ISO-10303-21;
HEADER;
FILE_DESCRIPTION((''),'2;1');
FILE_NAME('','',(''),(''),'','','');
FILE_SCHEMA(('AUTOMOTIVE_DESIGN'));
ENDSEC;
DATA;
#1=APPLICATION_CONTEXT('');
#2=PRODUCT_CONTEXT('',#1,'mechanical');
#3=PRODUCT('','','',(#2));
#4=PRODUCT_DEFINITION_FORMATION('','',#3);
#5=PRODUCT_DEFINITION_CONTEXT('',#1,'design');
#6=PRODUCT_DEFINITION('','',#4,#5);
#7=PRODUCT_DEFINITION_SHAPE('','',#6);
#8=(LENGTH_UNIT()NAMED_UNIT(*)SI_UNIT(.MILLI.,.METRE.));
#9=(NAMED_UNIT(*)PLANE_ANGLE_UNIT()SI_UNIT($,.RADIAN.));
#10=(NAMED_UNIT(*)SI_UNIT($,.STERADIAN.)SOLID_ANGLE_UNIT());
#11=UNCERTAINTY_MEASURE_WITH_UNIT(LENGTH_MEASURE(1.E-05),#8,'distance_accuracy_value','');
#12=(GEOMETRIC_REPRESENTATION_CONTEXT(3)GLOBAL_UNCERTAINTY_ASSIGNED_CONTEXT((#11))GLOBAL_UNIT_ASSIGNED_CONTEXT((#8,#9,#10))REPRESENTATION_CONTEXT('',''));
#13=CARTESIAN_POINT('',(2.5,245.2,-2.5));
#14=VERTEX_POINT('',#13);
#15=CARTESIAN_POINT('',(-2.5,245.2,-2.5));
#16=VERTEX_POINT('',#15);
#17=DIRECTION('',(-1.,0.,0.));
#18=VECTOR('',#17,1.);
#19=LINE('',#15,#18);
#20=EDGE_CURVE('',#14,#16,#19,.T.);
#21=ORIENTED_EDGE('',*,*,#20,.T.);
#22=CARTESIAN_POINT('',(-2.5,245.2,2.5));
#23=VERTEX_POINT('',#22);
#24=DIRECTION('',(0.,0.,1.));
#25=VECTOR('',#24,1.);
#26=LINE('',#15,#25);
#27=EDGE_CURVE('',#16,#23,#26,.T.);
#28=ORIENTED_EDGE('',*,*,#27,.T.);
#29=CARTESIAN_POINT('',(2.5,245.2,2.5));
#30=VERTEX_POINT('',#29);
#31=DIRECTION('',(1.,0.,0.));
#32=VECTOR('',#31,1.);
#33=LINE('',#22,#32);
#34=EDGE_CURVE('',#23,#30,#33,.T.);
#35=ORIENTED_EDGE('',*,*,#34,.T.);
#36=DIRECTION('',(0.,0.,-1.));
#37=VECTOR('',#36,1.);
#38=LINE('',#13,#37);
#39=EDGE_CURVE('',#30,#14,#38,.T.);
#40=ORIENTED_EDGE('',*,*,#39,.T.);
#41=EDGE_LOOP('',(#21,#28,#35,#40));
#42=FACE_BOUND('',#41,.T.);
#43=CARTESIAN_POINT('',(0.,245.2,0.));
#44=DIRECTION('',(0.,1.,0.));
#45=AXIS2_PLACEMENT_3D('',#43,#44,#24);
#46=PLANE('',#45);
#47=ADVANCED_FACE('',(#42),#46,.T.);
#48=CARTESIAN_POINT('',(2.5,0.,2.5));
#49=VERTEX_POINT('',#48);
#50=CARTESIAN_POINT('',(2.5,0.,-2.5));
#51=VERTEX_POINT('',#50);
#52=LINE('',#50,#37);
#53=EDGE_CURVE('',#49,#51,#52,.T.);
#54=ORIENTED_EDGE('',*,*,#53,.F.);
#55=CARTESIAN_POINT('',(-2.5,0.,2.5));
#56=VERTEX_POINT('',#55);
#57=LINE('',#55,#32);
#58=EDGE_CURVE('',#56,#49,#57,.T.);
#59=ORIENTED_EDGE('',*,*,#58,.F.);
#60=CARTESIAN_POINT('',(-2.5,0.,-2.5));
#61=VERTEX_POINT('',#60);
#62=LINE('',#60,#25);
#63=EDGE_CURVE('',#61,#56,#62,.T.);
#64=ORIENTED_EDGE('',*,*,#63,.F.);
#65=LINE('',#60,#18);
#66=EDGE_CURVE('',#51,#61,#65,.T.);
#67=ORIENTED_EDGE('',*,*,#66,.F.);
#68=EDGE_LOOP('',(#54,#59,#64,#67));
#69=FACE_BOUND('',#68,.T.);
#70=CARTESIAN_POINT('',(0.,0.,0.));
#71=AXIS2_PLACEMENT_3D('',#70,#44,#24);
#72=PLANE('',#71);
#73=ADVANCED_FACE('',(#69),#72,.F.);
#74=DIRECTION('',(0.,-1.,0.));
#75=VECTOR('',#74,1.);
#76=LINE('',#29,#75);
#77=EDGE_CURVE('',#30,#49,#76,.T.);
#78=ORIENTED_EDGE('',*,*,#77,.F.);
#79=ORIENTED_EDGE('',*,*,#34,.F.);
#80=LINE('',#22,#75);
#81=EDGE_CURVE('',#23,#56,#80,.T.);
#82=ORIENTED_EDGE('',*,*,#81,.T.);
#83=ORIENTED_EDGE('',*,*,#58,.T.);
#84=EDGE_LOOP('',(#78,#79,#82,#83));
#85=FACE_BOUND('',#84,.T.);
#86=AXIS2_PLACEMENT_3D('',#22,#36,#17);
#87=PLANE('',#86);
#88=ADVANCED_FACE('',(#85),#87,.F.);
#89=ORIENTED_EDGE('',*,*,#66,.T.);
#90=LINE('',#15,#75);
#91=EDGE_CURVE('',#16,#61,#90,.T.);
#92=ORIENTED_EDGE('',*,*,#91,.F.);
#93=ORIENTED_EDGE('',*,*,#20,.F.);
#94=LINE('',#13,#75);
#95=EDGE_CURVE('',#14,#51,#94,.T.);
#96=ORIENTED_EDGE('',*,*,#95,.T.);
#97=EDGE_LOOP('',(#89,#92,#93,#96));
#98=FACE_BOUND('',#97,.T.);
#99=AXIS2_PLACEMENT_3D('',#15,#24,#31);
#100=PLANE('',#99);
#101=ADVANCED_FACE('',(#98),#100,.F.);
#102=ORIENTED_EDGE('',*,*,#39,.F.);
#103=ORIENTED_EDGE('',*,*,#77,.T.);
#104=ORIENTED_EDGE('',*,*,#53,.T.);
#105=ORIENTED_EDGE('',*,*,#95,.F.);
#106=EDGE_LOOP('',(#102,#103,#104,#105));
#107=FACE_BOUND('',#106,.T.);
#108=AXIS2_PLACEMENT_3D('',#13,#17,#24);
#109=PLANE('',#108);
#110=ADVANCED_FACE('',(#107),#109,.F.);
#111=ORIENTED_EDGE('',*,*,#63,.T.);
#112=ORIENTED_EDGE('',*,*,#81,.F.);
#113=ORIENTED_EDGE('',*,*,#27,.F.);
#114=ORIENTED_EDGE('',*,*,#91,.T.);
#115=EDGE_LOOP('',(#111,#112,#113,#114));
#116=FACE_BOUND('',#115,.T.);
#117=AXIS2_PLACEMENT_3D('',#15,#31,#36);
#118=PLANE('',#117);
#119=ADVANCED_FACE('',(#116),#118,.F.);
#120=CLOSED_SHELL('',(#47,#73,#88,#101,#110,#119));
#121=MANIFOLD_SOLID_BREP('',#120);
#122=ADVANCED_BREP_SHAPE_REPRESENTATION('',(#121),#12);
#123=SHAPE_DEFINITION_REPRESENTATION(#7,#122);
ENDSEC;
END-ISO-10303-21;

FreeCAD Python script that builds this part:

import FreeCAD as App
import Part
import Sketcher


def add_polygon(sketch, points):
    """Adds a closed chain of lines whose ends are joined by coincident constraints."""
    first, n = sketch.GeometryCount, len(points)
    for a, b in zip(points, points[1:] + points[:1]):
        sketch.addGeometry(Part.LineSegment(App.Vector(*a, 0), App.Vector(*b, 0)), False)
    for i in range(n):
        sketch.addConstraint(Sketcher.Constraint("Coincident", first + i, 2, first + (i + 1) % n, 1))

doc = App.newDocument("Part")
params = doc.addObject("Spreadsheet::Sheet", "Params")
for row, (alias, value) in enumerate([
    ("sketch1_width", "5 mm"),
    ("pad1_length", "245.2 mm"),
], start=1):
    params.set(f"A{row}", alias)
    params.set(f"B{row}", "=" + value)
    params.setAlias(f"B{row}", alias)

body = doc.addObject("PartDesign::Body", "Body")

# Sketch on XZ plane
sketch1 = body.newObject("Sketcher::SketchObject", "Sketch")
sketch1.AttachmentSupport = (doc.getObject("XZ_Plane"), [""])
sketch1.MapMode = "FlatFace"
add_polygon(sketch1, [(-2, -2), (-2, 2), (2, 2), (2, -2)])  # lines 0-3
sketch1.addConstraint([
    Sketcher.Constraint("Vertical", 0),
    Sketcher.Constraint("Horizontal", 1),
    Sketcher.Constraint("Vertical", 2),
    Sketcher.Constraint("Horizontal", 3),
    Sketcher.Constraint("Symmetric", 0, 2, 2, 2, -1, 1),
    Sketcher.Constraint("Equal", 3, 0),
    Sketcher.Constraint("DistanceX", 1, 1, 1, 2, 5.0),
])
sketch1.setExpression("Constraints[10]", "Params.sketch1_width")
pad1 = body.newObject("PartDesign::Pad", "Pad")
pad1.Profile = sketch1
pad1.setExpression("Length", "Params.pad1_length")
pad1.Reversed = True

doc.recompute()
